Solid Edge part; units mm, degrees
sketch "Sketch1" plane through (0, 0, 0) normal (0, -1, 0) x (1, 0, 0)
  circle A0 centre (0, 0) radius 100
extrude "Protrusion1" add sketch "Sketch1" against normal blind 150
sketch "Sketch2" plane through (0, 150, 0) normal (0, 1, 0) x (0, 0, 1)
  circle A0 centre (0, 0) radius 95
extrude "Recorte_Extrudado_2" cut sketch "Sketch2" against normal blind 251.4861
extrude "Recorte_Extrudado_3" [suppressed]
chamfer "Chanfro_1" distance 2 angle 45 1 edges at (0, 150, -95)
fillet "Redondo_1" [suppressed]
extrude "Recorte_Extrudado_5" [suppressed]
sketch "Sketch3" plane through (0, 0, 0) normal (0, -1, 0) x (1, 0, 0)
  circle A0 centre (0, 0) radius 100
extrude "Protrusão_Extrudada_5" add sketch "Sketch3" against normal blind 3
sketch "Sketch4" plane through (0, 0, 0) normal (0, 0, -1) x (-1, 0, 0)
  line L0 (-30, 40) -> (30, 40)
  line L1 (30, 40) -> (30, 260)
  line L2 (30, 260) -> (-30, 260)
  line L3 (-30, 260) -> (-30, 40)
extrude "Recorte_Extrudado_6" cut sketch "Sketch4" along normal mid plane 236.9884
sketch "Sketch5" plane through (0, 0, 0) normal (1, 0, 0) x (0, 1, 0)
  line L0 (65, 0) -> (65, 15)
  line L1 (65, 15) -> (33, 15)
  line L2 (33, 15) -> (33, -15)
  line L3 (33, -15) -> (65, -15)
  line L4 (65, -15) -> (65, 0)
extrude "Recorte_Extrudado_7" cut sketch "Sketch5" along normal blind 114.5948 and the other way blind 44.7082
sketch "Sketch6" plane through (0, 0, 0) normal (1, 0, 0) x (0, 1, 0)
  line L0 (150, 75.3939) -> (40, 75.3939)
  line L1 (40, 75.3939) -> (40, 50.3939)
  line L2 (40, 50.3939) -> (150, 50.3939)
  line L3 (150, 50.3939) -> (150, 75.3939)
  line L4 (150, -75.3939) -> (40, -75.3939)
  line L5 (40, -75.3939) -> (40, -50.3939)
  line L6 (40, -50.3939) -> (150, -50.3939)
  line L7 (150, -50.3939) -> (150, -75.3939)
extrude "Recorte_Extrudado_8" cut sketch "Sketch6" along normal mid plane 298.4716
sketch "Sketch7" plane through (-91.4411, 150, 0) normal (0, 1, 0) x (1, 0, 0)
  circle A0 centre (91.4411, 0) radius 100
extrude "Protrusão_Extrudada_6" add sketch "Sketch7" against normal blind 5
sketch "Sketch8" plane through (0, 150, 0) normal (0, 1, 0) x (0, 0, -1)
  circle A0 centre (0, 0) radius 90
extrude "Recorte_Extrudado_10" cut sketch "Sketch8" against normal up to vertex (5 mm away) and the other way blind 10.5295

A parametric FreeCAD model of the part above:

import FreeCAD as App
import Part
import Sketcher
from FreeCAD import Vector


def edges_at(feature, points):
    """Names of the edges that pass closest to the given points."""
    edges = feature.Shape.Edges
    near = lambda p: min(range(len(edges)), key=lambda i: edges[i].distToShape(Part.Vertex(*p))[0])
    return sorted({f"Edge{near(p) + 1}" for p in points})


def add_polygon(sketch, points):
    """Adds a closed chain of lines whose ends are joined by coincident constraints."""
    first, n = sketch.GeometryCount, len(points)
    for a, b in zip(points, points[1:] + points[:1]):
        sketch.addGeometry(Part.LineSegment(App.Vector(*a, 0), App.Vector(*b, 0)), False)
    for i in range(n):
        sketch.addConstraint(Sketcher.Constraint("Coincident", first + i, 2, first + (i + 1) % n, 1))

doc = App.newDocument("Part")
body = doc.addObject("PartDesign::Body", "Body")

# Sketch on XZ plane
sketch1 = body.newObject("Sketcher::SketchObject", "Sketch")
sketch1.AttachmentSupport = (doc.getObject("XZ_Plane"), [""])
sketch1.MapMode = "FlatFace"
sketch1.addGeometry(Part.Circle(Vector(0, 0, 0), Vector(0, 0, 1), 100), False)
sketch1.addConstraint([
    Sketcher.Constraint("Coincident", 0, 3, -1, 1),
    Sketcher.Constraint("Diameter", 0, 200.0),
])
pad1 = body.newObject("PartDesign::Pad", "Pad")
pad1.Profile = sketch1
pad1.Length = 150
pad1.Reversed = True

# Sketch on XZ plane
sketch2 = body.newObject("Sketcher::SketchObject", "Sketch001")
sketch2.AttachmentSupport = (doc.getObject("XZ_Plane"), [""])
sketch2.MapMode = "FlatFace"
sketch2.AttachmentOffset = App.Placement(Vector(0, 0, -150), App.Rotation())
sketch2.addGeometry(Part.Circle(Vector(0, 0, 0), Vector(0, 0, 1), 95), False)
sketch2.addConstraint([
    Sketcher.Constraint("Coincident", 0, 3, -1, 1),
    Sketcher.Constraint("Diameter", 0, 190.0),
])
pocket1 = body.newObject("PartDesign::Pocket", "Pocket")
pocket1.Profile = sketch2
pocket1.Length = 251.4861
pocket1.Reversed = True
doc.recompute()

chamfer = body.newObject("PartDesign::Chamfer", "Chamfer")
chamfer.Base = (pocket1, edges_at(pocket1, [(0, 150, -95)]))
chamfer.Size = 2

# Sketch on XZ plane
sketch3 = body.newObject("Sketcher::SketchObject", "Sketch002")
sketch3.AttachmentSupport = (doc.getObject("XZ_Plane"), [""])
sketch3.MapMode = "FlatFace"
sketch3.addGeometry(Part.Circle(Vector(0, 0, 0), Vector(0, 0, 1), 100), False)
sketch3.addConstraint([
    Sketcher.Constraint("Coincident", 0, 3, -1, 1),
    Sketcher.Constraint("Diameter", 0, 200.0),
])
pad2 = body.newObject("PartDesign::Pad", "Pad001")
pad2.Profile = sketch3
pad2.Length = 3
pad2.Reversed = True

# Sketch on XY plane
sketch4 = body.newObject("Sketcher::SketchObject", "Sketch003")
sketch4.AttachmentSupport = (doc.getObject("XY_Plane"), [""])
sketch4.MapMode = "FlatFace"
add_polygon(sketch4, [(30, 260), (30, 40), (-30, 40), (-30, 260)])  # lines 0-3
sketch4.addConstraint([
    Sketcher.Constraint("Vertical", 0),
    Sketcher.Constraint("Horizontal", 1),
    Sketcher.Constraint("Vertical", 2),
    Sketcher.Constraint("Horizontal", 3),
    Sketcher.Constraint("DistanceX", 1, 2, 1, 1, 60.0),
    Sketcher.Constraint("DistanceY", 0, 2, 0, 1, 220.0),
    Sketcher.Constraint("DistanceX", -1, 1, 0, 2, 30.0),
    Sketcher.Constraint("DistanceY", -1, 1, 0, 2, 40.0),
])
pocket2 = body.newObject("PartDesign::Pocket", "Pocket001")
pocket2.Profile = sketch4
pocket2.Length = 236.9884
pocket2.Midplane = True

# Sketch on YZ plane
sketch5 = body.newObject("Sketcher::SketchObject", "Sketch004")
sketch5.AttachmentSupport = (doc.getObject("YZ_Plane"), [""])
sketch5.MapMode = "FlatFace"
add_polygon(sketch5, [(65, -15), (65, 15), (33, 15), (33, -15)])  # lines 0-3
sketch5.addConstraint([
    Sketcher.Constraint("Vertical", 0),
    Sketcher.Constraint("Horizontal", 1),
    Sketcher.Constraint("Vertical", 2),
    Sketcher.Constraint("Horizontal", 3),
    Sketcher.Constraint("DistanceX", 1, 2, 1, 1, 32.0),
    Sketcher.Constraint("DistanceY", 0, 1, 0, 2, 30.0),
    Sketcher.Constraint("DistanceX", -1, 1, 0, 2, 65.0),
    Sketcher.Constraint("DistanceY", -1, 1, 0, 2, 15.0),
])
pocket3 = body.newObject("PartDesign::Pocket", "Pocket002")
pocket3.Profile = sketch5
pocket3.Type = "TwoLengths"
pocket3.Length = 114.5948
pocket3.Length2 = 44.7082
pocket3.Reversed = True

# Sketch on YZ plane
sketch6 = body.newObject("Sketcher::SketchObject", "Sketch005")
sketch6.AttachmentSupport = (doc.getObject("YZ_Plane"), [""])
sketch6.MapMode = "FlatFace"
add_polygon(sketch6, [(150, 50), (150, 75), (40, 75), (40, 50)])  # lines 0-3
add_polygon(sketch6, [(40, -75), (150, -75), (150, -50), (40, -50)])  # lines 4-7
sketch6.addConstraint([
    Sketcher.Constraint("Vertical", 0),
    Sketcher.Constraint("Horizontal", 1),
    Sketcher.Constraint("Vertical", 2),
    Sketcher.Constraint("Horizontal", 3),
    Sketcher.Constraint("Horizontal", 4),
    Sketcher.Constraint("Vertical", 5),
    Sketcher.Constraint("Horizontal", 6),
    Sketcher.Constraint("Vertical", 7),
    Sketcher.Constraint("Symmetric", 0, 2, 4, 2, -1),
    Sketcher.Constraint("Symmetric", 2, 2, 6, 2, -1),
    Sketcher.Constraint("DistanceX", 1, 2, 1, 1, 110.0),
    Sketcher.Constraint("DistanceY", 0, 1, 0, 2, 25.0),
    Sketcher.Constraint("DistanceX", -1, 1, 0, 2, 150.0),
    Sketcher.Constraint("DistanceY", -1, 1, 0, 2, 75.394),
])
pocket4 = body.newObject("PartDesign::Pocket", "Pocket003")
pocket4.Profile = sketch6
pocket4.Length = 298.4716
pocket4.Midplane = True

# Sketch on XZ plane
sketch7 = body.newObject("Sketcher::SketchObject", "Sketch006")
sketch7.AttachmentSupport = (doc.getObject("XZ_Plane"), [""])
sketch7.MapMode = "FlatFace"
sketch7.AttachmentOffset = App.Placement(Vector(0, 0, -150), App.Rotation())
sketch7.addGeometry(Part.Circle(Vector(0, 0, 0), Vector(0, 0, 1), 100), False)
sketch7.addConstraint([
    Sketcher.Constraint("Coincident", 0, 3, -1, 1),
    Sketcher.Constraint("Diameter", 0, 200.0),
])
pad3 = body.newObject("PartDesign::Pad", "Pad002")
pad3.Profile = sketch7
pad3.Length = 5

# Sketch on XZ plane
sketch8 = body.newObject("Sketcher::SketchObject", "Sketch007")
sketch8.AttachmentSupport = (doc.getObject("XZ_Plane"), [""])
sketch8.MapMode = "FlatFace"
sketch8.AttachmentOffset = App.Placement(Vector(0, 0, -150), App.Rotation())
sketch8.addGeometry(Part.Circle(Vector(0, 0, 0), Vector(0, 0, 1), 90), False)
sketch8.addConstraint([
    Sketcher.Constraint("Coincident", 0, 3, -1, 1),
    Sketcher.Constraint("Diameter", 0, 180.0),
])
pocket5 = body.newObject("PartDesign::Pocket", "Pocket004")
pocket5.Profile = sketch8
pocket5.Type = "TwoLengths"
pocket5.Length = 5
pocket5.Length2 = 10.5295
pocket5.Reversed = True

doc.recompute()
